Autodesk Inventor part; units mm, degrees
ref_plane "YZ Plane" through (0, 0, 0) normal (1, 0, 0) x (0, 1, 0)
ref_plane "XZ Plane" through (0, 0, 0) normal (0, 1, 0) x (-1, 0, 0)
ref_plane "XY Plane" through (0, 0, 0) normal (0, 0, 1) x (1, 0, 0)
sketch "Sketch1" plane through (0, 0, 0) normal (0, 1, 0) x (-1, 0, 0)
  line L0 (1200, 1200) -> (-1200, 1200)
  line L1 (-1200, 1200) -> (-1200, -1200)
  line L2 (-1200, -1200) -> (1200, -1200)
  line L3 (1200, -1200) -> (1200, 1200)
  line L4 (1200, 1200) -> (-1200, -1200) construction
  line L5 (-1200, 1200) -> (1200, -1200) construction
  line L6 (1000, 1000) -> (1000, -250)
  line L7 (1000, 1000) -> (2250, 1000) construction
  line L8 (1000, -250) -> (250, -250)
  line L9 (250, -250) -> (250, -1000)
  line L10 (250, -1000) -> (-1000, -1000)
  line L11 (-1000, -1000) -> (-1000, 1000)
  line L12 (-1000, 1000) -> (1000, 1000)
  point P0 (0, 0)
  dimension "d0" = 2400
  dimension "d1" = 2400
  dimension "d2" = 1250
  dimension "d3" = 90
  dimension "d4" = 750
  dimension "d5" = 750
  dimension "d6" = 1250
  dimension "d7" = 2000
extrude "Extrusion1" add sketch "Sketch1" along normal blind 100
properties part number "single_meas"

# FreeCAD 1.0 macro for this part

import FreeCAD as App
import Part
import Sketcher


def add_polygon(sketch, points):
    """Adds a closed chain of lines whose ends are joined by coincident constraints."""
    first, n = sketch.GeometryCount, len(points)
    for a, b in zip(points, points[1:] + points[:1]):
        sketch.addGeometry(Part.LineSegment(App.Vector(*a, 0), App.Vector(*b, 0)), False)
    for i in range(n):
        sketch.addConstraint(Sketcher.Constraint("Coincident", first + i, 2, first + (i + 1) % n, 1))

doc = App.newDocument("Part")
body = doc.addObject("PartDesign::Body", "Body")

# Sketch on XZ plane
sketch1 = body.newObject("Sketcher::SketchObject", "Sketch")
sketch1.AttachmentSupport = (doc.getObject("XZ_Plane"), [""])
sketch1.MapMode = "FlatFace"
add_polygon(sketch1, [(-1200, -1200), (-1200, 1200), (1200, 1200), (1200, -1200)])  # lines 0-3
add_polygon(sketch1, [(1000, 1000), (-1000, 1000), (-1000, -250), (-250, -250), (-250, -1000), (1000, -1000)])  # lines 4-9
sketch1.addConstraint([
    Sketcher.Constraint("Vertical", 0),
    Sketcher.Constraint("Horizontal", 1),
    Sketcher.Constraint("Vertical", 2),
    Sketcher.Constraint("Horizontal", 3),
    Sketcher.Constraint("Horizontal", 4),
    Sketcher.Constraint("Vertical", 5),
    Sketcher.Constraint("Horizontal", 6),
    Sketcher.Constraint("Vertical", 7),
    Sketcher.Constraint("Horizontal", 8),
    Sketcher.Constraint("Vertical", 9),
    Sketcher.Constraint("Symmetric", 0, 2, 2, 2, -1, 1),
    Sketcher.Constraint("Symmetric", 4, 2, 8, 2, -1, 1),
    Sketcher.Constraint("Equal", 3, 0),
    Sketcher.Constraint("Equal", 8, 5),
    Sketcher.Constraint("Equal", 6, 7),
    Sketcher.Constraint("DistanceX", 1, 1, 1, 2, 2400.0),
    Sketcher.Constraint("DistanceX", 4, 2, 4, 1, 2000.0),
    Sketcher.Constraint("DistanceX", 6, 1, 6, 2, 750.0),
])
pad1 = body.newObject("PartDesign::Pad", "Pad")
pad1.Profile = sketch1
pad1.Length = 100
pad1.Reversed = True

doc.recompute()
